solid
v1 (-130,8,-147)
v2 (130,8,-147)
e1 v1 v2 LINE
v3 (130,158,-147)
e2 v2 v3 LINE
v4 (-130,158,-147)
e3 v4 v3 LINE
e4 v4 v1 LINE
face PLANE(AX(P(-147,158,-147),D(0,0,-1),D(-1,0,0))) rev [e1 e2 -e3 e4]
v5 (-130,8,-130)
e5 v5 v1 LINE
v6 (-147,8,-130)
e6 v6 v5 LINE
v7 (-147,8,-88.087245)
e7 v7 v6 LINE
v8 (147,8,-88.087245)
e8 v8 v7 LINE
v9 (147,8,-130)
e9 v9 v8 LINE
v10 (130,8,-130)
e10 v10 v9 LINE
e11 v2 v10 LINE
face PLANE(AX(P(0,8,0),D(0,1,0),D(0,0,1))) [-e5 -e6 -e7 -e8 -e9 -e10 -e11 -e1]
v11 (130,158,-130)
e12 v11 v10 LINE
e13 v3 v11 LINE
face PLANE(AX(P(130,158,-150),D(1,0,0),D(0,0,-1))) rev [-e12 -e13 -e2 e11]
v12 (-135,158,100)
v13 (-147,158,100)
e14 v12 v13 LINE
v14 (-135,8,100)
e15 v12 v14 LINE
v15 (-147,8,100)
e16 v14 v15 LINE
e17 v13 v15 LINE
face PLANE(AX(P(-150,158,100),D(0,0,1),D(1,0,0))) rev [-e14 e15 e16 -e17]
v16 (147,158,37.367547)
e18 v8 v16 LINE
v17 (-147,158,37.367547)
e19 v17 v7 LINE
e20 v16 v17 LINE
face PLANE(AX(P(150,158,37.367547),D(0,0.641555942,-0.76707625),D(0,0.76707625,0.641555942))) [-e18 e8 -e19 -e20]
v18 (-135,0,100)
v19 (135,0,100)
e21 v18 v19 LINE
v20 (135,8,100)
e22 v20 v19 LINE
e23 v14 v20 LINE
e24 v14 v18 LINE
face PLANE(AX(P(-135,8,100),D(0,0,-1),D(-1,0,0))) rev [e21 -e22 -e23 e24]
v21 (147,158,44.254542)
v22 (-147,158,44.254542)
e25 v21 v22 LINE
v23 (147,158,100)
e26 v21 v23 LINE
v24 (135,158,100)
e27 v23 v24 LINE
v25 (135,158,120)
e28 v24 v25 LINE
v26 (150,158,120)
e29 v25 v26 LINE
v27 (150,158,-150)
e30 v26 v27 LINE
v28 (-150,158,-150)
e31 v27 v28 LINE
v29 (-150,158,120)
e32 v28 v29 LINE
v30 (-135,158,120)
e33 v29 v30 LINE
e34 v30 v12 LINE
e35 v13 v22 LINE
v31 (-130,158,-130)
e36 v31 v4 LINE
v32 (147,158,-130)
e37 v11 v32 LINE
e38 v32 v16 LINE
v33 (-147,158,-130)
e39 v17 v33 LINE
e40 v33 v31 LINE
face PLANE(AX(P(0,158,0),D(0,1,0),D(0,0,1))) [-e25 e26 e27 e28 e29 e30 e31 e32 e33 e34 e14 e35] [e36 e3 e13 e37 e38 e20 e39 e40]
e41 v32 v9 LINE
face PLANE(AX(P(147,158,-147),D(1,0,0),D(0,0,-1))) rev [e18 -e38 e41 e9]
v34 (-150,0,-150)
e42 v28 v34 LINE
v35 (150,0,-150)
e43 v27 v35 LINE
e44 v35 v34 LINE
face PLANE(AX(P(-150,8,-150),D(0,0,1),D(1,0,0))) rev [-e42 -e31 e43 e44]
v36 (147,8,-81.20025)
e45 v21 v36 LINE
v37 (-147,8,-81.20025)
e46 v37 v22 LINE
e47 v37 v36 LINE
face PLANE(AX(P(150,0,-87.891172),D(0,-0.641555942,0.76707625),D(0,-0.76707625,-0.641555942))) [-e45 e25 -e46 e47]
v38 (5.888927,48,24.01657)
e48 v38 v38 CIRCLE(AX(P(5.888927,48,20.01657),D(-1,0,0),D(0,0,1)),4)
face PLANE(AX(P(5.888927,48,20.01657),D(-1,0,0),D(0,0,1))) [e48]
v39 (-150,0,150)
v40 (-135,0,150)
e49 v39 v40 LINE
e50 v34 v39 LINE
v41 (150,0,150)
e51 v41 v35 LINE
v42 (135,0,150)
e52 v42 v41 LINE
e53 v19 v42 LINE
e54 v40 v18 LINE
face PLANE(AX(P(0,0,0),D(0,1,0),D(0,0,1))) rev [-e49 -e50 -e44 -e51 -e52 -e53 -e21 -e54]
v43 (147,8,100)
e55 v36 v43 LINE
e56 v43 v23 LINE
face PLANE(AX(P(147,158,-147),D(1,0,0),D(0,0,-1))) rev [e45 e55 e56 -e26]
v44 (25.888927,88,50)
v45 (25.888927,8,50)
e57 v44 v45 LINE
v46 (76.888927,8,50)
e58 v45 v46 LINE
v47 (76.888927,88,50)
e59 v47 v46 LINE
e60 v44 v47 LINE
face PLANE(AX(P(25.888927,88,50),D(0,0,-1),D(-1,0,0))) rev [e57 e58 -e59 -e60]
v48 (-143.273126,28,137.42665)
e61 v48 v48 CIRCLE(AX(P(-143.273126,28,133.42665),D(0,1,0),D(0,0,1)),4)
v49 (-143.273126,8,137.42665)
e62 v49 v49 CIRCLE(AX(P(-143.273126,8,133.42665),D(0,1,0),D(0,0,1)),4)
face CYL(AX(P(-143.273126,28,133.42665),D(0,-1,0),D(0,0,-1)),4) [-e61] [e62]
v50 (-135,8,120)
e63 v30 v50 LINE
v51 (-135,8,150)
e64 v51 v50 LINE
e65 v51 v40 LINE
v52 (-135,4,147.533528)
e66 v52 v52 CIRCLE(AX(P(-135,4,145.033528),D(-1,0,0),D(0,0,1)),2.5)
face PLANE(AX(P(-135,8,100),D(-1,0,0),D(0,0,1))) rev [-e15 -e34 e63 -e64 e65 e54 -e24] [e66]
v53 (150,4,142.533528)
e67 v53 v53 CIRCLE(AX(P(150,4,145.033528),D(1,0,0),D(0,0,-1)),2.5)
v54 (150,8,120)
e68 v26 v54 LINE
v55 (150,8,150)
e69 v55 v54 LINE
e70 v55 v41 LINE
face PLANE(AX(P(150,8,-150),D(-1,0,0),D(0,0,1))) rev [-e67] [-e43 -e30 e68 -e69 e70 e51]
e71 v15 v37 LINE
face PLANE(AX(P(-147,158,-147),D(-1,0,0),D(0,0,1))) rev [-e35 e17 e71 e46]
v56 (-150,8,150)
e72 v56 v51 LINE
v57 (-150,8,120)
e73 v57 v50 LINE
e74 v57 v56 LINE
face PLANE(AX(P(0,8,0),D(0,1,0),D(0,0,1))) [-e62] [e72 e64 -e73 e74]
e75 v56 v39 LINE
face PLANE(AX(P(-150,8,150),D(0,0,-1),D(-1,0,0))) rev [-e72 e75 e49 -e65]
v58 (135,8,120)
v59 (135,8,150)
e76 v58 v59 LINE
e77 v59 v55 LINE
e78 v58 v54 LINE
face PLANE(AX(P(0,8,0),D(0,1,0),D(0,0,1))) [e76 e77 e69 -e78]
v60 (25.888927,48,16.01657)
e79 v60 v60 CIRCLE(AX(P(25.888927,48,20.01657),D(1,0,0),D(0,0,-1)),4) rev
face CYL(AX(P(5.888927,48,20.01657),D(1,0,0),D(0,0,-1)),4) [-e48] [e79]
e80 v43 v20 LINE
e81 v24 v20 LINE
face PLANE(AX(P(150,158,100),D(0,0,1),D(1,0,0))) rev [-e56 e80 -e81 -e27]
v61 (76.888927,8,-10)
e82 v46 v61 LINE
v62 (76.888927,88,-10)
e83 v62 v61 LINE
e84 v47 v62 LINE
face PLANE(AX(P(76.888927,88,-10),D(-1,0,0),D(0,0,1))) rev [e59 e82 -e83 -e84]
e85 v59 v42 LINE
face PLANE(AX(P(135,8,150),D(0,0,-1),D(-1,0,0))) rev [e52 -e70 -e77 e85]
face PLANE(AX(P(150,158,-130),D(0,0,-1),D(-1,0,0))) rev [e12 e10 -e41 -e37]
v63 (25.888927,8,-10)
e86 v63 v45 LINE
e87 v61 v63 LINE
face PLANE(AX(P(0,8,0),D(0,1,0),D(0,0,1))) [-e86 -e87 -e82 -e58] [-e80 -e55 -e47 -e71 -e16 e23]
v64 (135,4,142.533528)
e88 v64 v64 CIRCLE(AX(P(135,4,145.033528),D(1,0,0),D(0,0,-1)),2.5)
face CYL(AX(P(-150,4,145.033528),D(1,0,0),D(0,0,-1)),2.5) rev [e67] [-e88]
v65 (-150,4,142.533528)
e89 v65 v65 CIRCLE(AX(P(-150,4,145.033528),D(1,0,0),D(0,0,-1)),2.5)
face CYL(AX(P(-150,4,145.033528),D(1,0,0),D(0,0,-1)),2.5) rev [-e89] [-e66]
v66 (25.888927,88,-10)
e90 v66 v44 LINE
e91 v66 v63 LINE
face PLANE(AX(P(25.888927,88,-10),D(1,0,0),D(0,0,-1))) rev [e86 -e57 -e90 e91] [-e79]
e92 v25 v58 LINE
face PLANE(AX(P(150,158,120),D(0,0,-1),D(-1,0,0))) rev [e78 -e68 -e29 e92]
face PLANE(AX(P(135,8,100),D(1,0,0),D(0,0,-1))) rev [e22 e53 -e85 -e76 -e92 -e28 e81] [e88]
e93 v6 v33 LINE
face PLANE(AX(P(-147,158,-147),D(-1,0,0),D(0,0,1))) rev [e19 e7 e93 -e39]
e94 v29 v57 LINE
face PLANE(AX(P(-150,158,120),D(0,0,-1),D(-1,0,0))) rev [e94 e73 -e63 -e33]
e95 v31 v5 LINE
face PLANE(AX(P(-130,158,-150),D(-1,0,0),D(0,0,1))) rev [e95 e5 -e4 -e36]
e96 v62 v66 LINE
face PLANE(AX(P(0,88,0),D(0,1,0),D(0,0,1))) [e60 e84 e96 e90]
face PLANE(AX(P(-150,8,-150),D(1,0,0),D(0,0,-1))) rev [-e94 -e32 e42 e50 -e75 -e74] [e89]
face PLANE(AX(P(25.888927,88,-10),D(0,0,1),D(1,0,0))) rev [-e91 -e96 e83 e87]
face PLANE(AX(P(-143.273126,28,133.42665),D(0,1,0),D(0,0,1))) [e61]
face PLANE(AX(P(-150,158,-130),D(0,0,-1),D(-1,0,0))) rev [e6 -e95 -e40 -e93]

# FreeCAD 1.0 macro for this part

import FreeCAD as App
import Part
import Sketcher

V = App.Vector

doc = App.newDocument("Part")
body = doc.addObject("PartDesign::Body", "Body")

# Sketch on XZ plane
sketch1 = body.newObject("Sketcher::SketchObject", "Sketch")
sketch1.AttachmentSupport = (doc.getObject("XZ_Plane"), [""])
sketch1.MapMode = "FlatFace"
sketch1.addGeometry([
    Part.LineSegment(V(135, 150, 0), V(150, 150, 0)),  # 0
    Part.LineSegment(V(150, 150, 0), V(150, -150, 0)),  # 1
    Part.LineSegment(V(150, -150, 0), V(-150, -150, 0)),  # 2
    Part.LineSegment(V(-150, -150, 0), V(-150, 150, 0)),  # 3
    Part.LineSegment(V(-150, 150, 0), V(-135, 150, 0)),  # 4
    Part.LineSegment(V(-135, 150, 0), V(-135, 100, 0)),  # 5
    Part.LineSegment(V(-135, 100, 0), V(135, 100, 0)),  # 6
    Part.LineSegment(V(135, 100, 0), V(135, 150, 0)),  # 7
], False)
sketch1.addConstraint([
    Sketcher.Constraint("Coincident", 0, 2, 1, 1),
    Sketcher.Constraint("Coincident", 1, 2, 2, 1),
    Sketcher.Constraint("Coincident", 2, 2, 3, 1),
    Sketcher.Constraint("Coincident", 3, 2, 4, 1),
    Sketcher.Constraint("Coincident", 4, 2, 5, 1),
    Sketcher.Constraint("Coincident", 5, 2, 6, 1),
    Sketcher.Constraint("Coincident", 6, 2, 7, 1),
    Sketcher.Constraint("Coincident", 7, 2, 0, 1),
    Sketcher.Constraint("Horizontal", 0),
    Sketcher.Constraint("Vertical", 1),
    Sketcher.Constraint("Horizontal", 2),
    Sketcher.Constraint("Vertical", 3),
    Sketcher.Constraint("Horizontal", 4),
    Sketcher.Constraint("Vertical", 5),
    Sketcher.Constraint("Horizontal", 6),
    Sketcher.Constraint("Vertical", 7),
    Sketcher.Constraint("Symmetric", 0, 2, 2, 2, -1, 1),
    Sketcher.Constraint("Symmetric", 4, 2, 7, 2, -2),
    Sketcher.Constraint("Equal", 2, 1),
    Sketcher.Constraint("DistanceX", 0, 1, 0, 2, 15.0),
    Sketcher.Constraint("DistanceX", 2, 2, 2, 1, 300.0),
    Sketcher.Constraint("DistanceY", 5, 2, 5, 1, 50.0),
])
pad1 = body.newObject("PartDesign::Pad", "Pad")
pad1.Profile = sketch1
pad1.Length = 8
pad1.Reversed = True

# Sketch on YZ plane
sketch2 = body.newObject("Sketcher::SketchObject", "Sketch001")
sketch2.AttachmentSupport = (doc.getObject("YZ_Plane"), [""])
sketch2.MapMode = "FlatFace"
sketch2.addGeometry(Part.Circle(V(4, 145.033528, 0), V(0, 0, 1), 2.5), False)
sketch2.addConstraint([
    Sketcher.Constraint("Diameter", 0, 5.0),
    Sketcher.Constraint("DistanceX", -1, 1, 0, 3, 4.0),
    Sketcher.Constraint("DistanceY", -1, 1, 0, 3, 145.033528),
])
pocket1 = body.newObject("PartDesign::Pocket", "Pocket")
pocket1.Profile = sketch2
pocket1.Type = "ThroughAll"
pocket1.Midplane = True

# Sketch on XZ plane
sketch3 = body.newObject("Sketcher::SketchObject", "Sketch002")
sketch3.AttachmentSupport = (doc.getObject("XZ_Plane"), [""])
sketch3.MapMode = "FlatFace"
sketch3.AttachmentOffset = App.Placement(V(0, 0, -8), App.Rotation())
sketch3.addGeometry([
    Part.LineSegment(V(-150, -150, 0), V(-150, -130, 0)),  # 0
    Part.LineSegment(V(-150, -130, 0), V(-130, -130, 0)),  # 1
    Part.LineSegment(V(-130, -130, 0), V(-130, -150, 0)),  # 2
    Part.LineSegment(V(-130, -150, 0), V(-150, -150, 0)),  # 3
    Part.LineSegment(V(130, -150, 0), V(130, -130, 0)),  # 4
    Part.LineSegment(V(130, -130, 0), V(150, -130, 0)),  # 5
    Part.LineSegment(V(150, -130, 0), V(150, -150, 0)),  # 6
    Part.LineSegment(V(150, -150, 0), V(130, -150, 0)),  # 7
    Part.LineSegment(V(135, 100, 0), V(135, 120, 0)),  # 8
    Part.LineSegment(V(135, 120, 0), V(150, 120, 0)),  # 9
    Part.LineSegment(V(150, 120, 0), V(150, 100, 0)),  # 10
    Part.LineSegment(V(150, 100, 0), V(135, 100, 0)),  # 11
    Part.LineSegment(V(-150, 100, 0), V(-150, 120, 0)),  # 12
    Part.LineSegment(V(-150, 120, 0), V(-135, 120, 0)),  # 13
    Part.LineSegment(V(-135, 120, 0), V(-135, 100, 0)),  # 14
    Part.LineSegment(V(-135, 100, 0), V(-150, 100, 0)),  # 15
], False)
sketch3.addConstraint([
    Sketcher.Constraint("Coincident", 0, 2, 1, 1),
    Sketcher.Constraint("Coincident", 1, 2, 2, 1),
    Sketcher.Constraint("Coincident", 2, 2, 3, 1),
    Sketcher.Constraint("Coincident", 3, 2, 0, 1),
    Sketcher.Constraint("Coincident", 4, 2, 5, 1),
    Sketcher.Constraint("Coincident", 5, 2, 6, 1),
    Sketcher.Constraint("Coincident", 6, 2, 7, 1),
    Sketcher.Constraint("Coincident", 7, 2, 4, 1),
    Sketcher.Constraint("Coincident", 8, 2, 9, 1),
    Sketcher.Constraint("Coincident", 9, 2, 10, 1),
    Sketcher.Constraint("Coincident", 10, 2, 11, 1),
    Sketcher.Constraint("Coincident", 11, 2, 8, 1),
    Sketcher.Constraint("Coincident", 12, 2, 13, 1),
    Sketcher.Constraint("Coincident", 13, 2, 14, 1),
    Sketcher.Constraint("Coincident", 14, 2, 15, 1),
    Sketcher.Constraint("Coincident", 15, 2, 12, 1),
    Sketcher.Constraint("Vertical", 0),
    Sketcher.Constraint("Horizontal", 1),
    Sketcher.Constraint("Vertical", 2),
    Sketcher.Constraint("Horizontal", 3),
    Sketcher.Constraint("Vertical", 4),
    Sketcher.Constraint("Horizontal", 5),
    Sketcher.Constraint("Vertical", 6),
    Sketcher.Constraint("Horizontal", 7),
    Sketcher.Constraint("Vertical", 8),
    Sketcher.Constraint("Horizontal", 9),
    Sketcher.Constraint("Vertical", 10),
    Sketcher.Constraint("Horizontal", 11),
    Sketcher.Constraint("Vertical", 12),
    Sketcher.Constraint("Horizontal", 13),
    Sketcher.Constraint("Vertical", 14),
    Sketcher.Constraint("Horizontal", 15),
    Sketcher.Constraint("Symmetric", 1, 2, 4, 2, -2),
    Sketcher.Constraint("Symmetric", 3, 2, 6, 2, -2),
    Sketcher.Constraint("Symmetric", 9, 2, 12, 2, -2),
    Sketcher.Constraint("Symmetric", 11, 2, 14, 2, -2),
    Sketcher.Constraint("Vertical", 6, 2, 9, 2),
    Sketcher.Constraint("Equal", 7, 0),
    Sketcher.Constraint("Equal", 6, 8),
    Sketcher.Constraint("DistanceX", 1, 1, 1, 2, 20.0),
    Sketcher.Constraint("DistanceX", 9, 1, 9, 2, 15.0),
    Sketcher.Constraint("DistanceX", 0, 2, -1, 1, 150.0),
    Sketcher.Constraint("DistanceY", 0, 2, -1, 1, 130.0),
    Sketcher.Constraint("DistanceY", -1, 1, 8, 2, 120.0),
])
pad2 = body.newObject("PartDesign::Pad", "Pad001")
pad2.Profile = sketch3
pad2.Length = 150
pad2.Reversed = True

# Sketch on XZ plane
sketch4 = body.newObject("Sketcher::SketchObject", "Sketch003")
sketch4.AttachmentSupport = (doc.getObject("XZ_Plane"), [""])
sketch4.MapMode = "FlatFace"
sketch4.AttachmentOffset = App.Placement(V(0, 0, -8), App.Rotation())
sketch4.addGeometry([
    Part.LineSegment(V(-147, 117, 0), V(-147, -147, 0)),  # 0
    Part.LineSegment(V(-147, -147, 0), V(147, -147, 0)),  # 1
    Part.LineSegment(V(147, -147, 0), V(147, 117, 0)),  # 2
    Part.LineSegment(V(147, 117, 0), V(150, 120, 0)),  # 3
    Part.LineSegment(V(150, 120, 0), V(150, -150, 0)),  # 4
    Part.LineSegment(V(150, -150, 0), V(-150, -150, 0)),  # 5
    Part.LineSegment(V(-150, -150, 0), V(-150, 120, 0)),  # 6
    Part.LineSegment(V(-150, 120, 0), V(-147, 117, 0)),  # 7
], False)
sketch4.addConstraint([
    Sketcher.Constraint("Coincident", 0, 2, 1, 1),
    Sketcher.Constraint("Coincident", 1, 2, 2, 1),
    Sketcher.Constraint("Coincident", 2, 2, 3, 1),
    Sketcher.Constraint("Coincident", 3, 2, 4, 1),
    Sketcher.Constraint("Coincident", 4, 2, 5, 1),
    Sketcher.Constraint("Coincident", 5, 2, 6, 1),
    Sketcher.Constraint("Coincident", 6, 2, 7, 1),
    Sketcher.Constraint("Coincident", 7, 2, 0, 1),
    Sketcher.Constraint("Vertical", 0),
    Sketcher.Constraint("Horizontal", 1),
    Sketcher.Constraint("Vertical", 2),
    Sketcher.Constraint("Vertical", 4),
    Sketcher.Constraint("Horizontal", 5),
    Sketcher.Constraint("Vertical", 6),
    Sketcher.Constraint("Symmetric", 3, 2, 6, 2, -2),
    Sketcher.Constraint("Symmetric", 2, 2, 7, 2, -2),
    Sketcher.Constraint("Perpendicular", 3, 7),
    Sketcher.Constraint("DistanceX", 1, 1, 1, 2, 294.0),
    Sketcher.Constraint("DistanceX", 5, 2, 5, 1, 300.0),
    Sketcher.Constraint("DistanceY", 0, 2, 0, 1, 264.0),
    Sketcher.Constraint("DistanceY", 4, 2, 4, 1, 270.0),
    Sketcher.Constraint("DistanceY", 0, 2, -1, 1, 147.0),
])
pad3 = body.newObject("PartDesign::Pad", "Pad002")
pad3.Profile = sketch4
pad3.Length = 150
pad3.Reversed = True

# Sketch on XZ plane
sketch5 = body.newObject("Sketcher::SketchObject", "Sketch004")
sketch5.AttachmentSupport = (doc.getObject("XZ_Plane"), [""])
sketch5.MapMode = "FlatFace"
sketch5.AttachmentOffset = App.Placement(V(0, 0, -8), App.Rotation())
sketch5.addGeometry([
    Part.LineSegment(V(25.888927, -10, 0), V(25.888927, 50, 0)),
    Part.LineSegment(V(25.888927, 50, 0), V(76.888927, 50, 0)),
    Part.LineSegment(V(76.888927, 50, 0), V(76.888927, -10, 0)),
    Part.LineSegment(V(76.888927, -10, 0), V(25.888927, -10, 0)),
], False)
sketch5.addConstraint([
    Sketcher.Constraint("Coincident", 0, 2, 1, 1),
    Sketcher.Constraint("Coincident", 1, 2, 2, 1),
    Sketcher.Constraint("Coincident", 2, 2, 3, 1),
    Sketcher.Constraint("Coincident", 3, 2, 0, 1),
    Sketcher.Constraint("Vertical", 0),
    Sketcher.Constraint("Horizontal", 1),
    Sketcher.Constraint("Vertical", 2),
    Sketcher.Constraint("Horizontal", 3),
    Sketcher.Constraint("DistanceX", 1, 1, 1, 2, 51.0),
    Sketcher.Constraint("DistanceY", 0, 1, 0, 2, 60.0),
    Sketcher.Constraint("DistanceY", -1, 1, 0, 2, 50.0),
    Sketcher.Constraint("DistanceX", -1, 1, 0, 2, 25.888927),
])
pad4 = body.newObject("PartDesign::Pad", "Pad003")
pad4.Profile = sketch5
pad4.Length = 80
pad4.Reversed = True

# Sketch on YZ plane
sketch6 = body.newObject("Sketcher::SketchObject", "Sketch005")
sketch6.AttachmentSupport = (doc.getObject("YZ_Plane"), [""])
sketch6.MapMode = "FlatFace"
sketch6.AttachmentOffset = App.Placement(V(0, 0, 25.888927), App.Rotation())
sketch6.addGeometry(Part.Circle(V(48, 20.01657, 0), V(0, 0, 1), 4), False)
sketch6.addConstraint([
    Sketcher.Constraint("Diameter", 0, 8.0),
    Sketcher.Constraint("DistanceX", -1, 1, 0, 3, 48.0),
    Sketcher.Constraint("DistanceY", -1, 1, 0, 3, 20.01657),
])
pad5 = body.newObject("PartDesign::Pad", "Pad004")
pad5.Profile = sketch6
pad5.Length = 20
pad5.Reversed = True

# Sketch on YZ plane
sketch7 = body.newObject("Sketcher::SketchObject", "Sketch006")
sketch7.AttachmentSupport = (doc.getObject("YZ_Plane"), [""])
sketch7.MapMode = "FlatFace"
sketch7.AttachmentOffset = App.Placement(V(0, 0, -150), App.Rotation())
sketch7.addGeometry([
    Part.LineSegment(V(158, 37.367547, 0), V(0, -94.778167, 0)),
    Part.LineSegment(V(0, -94.778167, 0), V(0, -87.891172, 0)),
    Part.LineSegment(V(0, -87.891172, 0), V(158, 44.254542, 0)),
    Part.LineSegment(V(158, 44.254542, 0), V(158, 37.367547, 0)),
], False)
sketch7.addConstraint([
    Sketcher.Constraint("Coincident", 0, 2, 1, 1),
    Sketcher.Constraint("Coincident", 1, 2, 2, 1),
    Sketcher.Constraint("Coincident", 2, 2, 3, 1),
    Sketcher.Constraint("Coincident", 3, 2, 0, 1),
    Sketcher.Constraint("Vertical", 1),
    Sketcher.Constraint("Vertical", 3),
    Sketcher.Constraint("PointOnObject", 0, 2, -2),
    Sketcher.Constraint("Parallel", 0, 2),
    Sketcher.Constraint("DistanceX", -1, 1, 2, 2, 158.0),
    Sketcher.Constraint("DistanceY", 1, 1, 1, 2, 6.886995),
    Sketcher.Constraint("DistanceY", -1, 1, 2, 2, 44.254542),
    Sketcher.Constraint("DistanceY", 0, 2, 2, 2, 139.032709),
])
pad6 = body.newObject("PartDesign::Pad", "Pad005")
pad6.Profile = sketch7
pad6.Length = 297

# Sketch on XZ plane
sketch8 = body.newObject("Sketcher::SketchObject", "Sketch007")
sketch8.AttachmentSupport = (doc.getObject("XZ_Plane"), [""])
sketch8.MapMode = "FlatFace"
sketch8.AttachmentOffset = App.Placement(V(0, 0, -8), App.Rotation())
sketch8.addGeometry(Part.Circle(V(-143.273126, 133.42665, 0), V(0, 0, 1), 4), False)
sketch8.addConstraint([
    Sketcher.Constraint("Diameter", 0, 8.0),
    Sketcher.Constraint("DistanceY", -1, 1, 0, 3, 133.42665),
    Sketcher.Constraint("DistanceX", 0, 3, -1, 1, 143.273126),
])
pad7 = body.newObject("PartDesign::Pad", "Pad006")
pad7.Profile = sketch8
pad7.Length = 20
pad7.Reversed = True

doc.recompute()
